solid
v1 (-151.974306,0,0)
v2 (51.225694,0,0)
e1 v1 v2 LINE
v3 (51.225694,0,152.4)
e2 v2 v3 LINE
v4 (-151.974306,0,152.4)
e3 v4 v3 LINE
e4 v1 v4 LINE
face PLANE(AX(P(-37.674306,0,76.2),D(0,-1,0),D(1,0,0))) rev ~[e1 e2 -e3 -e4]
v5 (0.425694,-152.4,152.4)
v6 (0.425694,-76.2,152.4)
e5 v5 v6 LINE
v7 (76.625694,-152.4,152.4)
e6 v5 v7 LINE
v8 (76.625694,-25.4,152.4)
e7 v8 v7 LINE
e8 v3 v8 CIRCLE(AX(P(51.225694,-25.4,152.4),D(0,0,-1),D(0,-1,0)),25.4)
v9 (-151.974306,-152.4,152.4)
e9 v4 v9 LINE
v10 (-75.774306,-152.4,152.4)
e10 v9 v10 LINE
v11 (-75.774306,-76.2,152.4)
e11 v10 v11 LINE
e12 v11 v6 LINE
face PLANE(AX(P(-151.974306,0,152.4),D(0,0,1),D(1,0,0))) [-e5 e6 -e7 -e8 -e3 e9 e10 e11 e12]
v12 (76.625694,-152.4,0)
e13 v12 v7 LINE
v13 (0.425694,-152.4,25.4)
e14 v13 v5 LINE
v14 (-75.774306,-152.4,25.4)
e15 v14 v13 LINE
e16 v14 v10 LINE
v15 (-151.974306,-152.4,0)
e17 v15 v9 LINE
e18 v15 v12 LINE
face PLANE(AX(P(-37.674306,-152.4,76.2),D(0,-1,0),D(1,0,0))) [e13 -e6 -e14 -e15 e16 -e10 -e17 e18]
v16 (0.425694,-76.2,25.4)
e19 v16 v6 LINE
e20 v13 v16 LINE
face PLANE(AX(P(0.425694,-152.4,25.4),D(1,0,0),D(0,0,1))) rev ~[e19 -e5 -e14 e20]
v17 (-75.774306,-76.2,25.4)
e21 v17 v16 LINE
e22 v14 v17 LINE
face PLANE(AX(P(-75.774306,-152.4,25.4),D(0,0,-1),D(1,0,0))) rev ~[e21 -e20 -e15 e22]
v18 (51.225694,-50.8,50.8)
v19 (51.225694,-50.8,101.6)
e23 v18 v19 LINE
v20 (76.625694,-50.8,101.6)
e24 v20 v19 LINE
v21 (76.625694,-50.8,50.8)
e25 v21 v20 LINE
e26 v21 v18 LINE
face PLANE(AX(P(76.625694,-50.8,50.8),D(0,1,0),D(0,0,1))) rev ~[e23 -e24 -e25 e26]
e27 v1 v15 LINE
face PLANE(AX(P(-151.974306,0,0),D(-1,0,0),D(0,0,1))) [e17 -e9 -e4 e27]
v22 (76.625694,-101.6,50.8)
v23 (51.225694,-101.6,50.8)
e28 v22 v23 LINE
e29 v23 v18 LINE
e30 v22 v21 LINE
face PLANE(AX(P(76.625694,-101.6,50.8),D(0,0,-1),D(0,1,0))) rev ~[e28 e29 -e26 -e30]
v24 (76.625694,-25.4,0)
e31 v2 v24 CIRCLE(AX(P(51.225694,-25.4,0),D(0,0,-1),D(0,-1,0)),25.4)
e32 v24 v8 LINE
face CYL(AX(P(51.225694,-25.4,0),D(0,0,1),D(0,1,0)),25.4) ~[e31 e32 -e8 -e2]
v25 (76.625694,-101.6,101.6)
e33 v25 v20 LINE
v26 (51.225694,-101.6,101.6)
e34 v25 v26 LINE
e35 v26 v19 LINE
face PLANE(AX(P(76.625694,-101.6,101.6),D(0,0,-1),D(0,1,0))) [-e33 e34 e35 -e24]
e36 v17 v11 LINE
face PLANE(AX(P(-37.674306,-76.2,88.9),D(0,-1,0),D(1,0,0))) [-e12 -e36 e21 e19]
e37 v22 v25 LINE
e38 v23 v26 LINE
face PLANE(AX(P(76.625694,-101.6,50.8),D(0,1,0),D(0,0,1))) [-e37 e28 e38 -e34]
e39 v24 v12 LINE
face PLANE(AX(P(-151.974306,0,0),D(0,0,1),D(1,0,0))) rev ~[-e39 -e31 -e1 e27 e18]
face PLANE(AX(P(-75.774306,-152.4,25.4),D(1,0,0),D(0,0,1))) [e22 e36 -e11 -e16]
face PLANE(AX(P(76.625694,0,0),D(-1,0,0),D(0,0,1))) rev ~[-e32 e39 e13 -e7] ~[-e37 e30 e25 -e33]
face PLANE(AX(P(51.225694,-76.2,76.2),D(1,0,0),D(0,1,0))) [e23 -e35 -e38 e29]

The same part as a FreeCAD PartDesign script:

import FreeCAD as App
import Part
import Sketcher
Q = App.Units.Quantity


def edges_at(feature, points):
    """Names of the edges that pass closest to the given points."""
    edges = feature.Shape.Edges
    near = lambda p: min(range(len(edges)), key=lambda i: edges[i].distToShape(Part.Vertex(*p))[0])
    return sorted({f"Edge{near(p) + 1}" for p in points})

doc = App.newDocument("Part")
body = doc.addObject("PartDesign::Body", "Body")

# Sketch on XZ plane
sketch1 = body.newObject("Sketcher::SketchObject", "Sketch")
sketch1.AttachmentSupport = (doc.getObject("XZ_Plane"), [""])
sketch1.MapMode = "FlatFace"
sketch1.addGeometry([
    Part.LineSegment(App.Vector(-152, 152, 0), App.Vector(-152, 0, 0)),
    Part.LineSegment(App.Vector(-152, 0, 0), App.Vector(77, 0, 0)),
    Part.LineSegment(App.Vector(77, 0, 0), App.Vector(77, 152, 0)),
    Part.LineSegment(App.Vector(77, 152, 0), App.Vector(-152, 152, 0)),
], False)
sketch1.addConstraint([
    Sketcher.Constraint("Coincident", 0, 2, 1, 1),
    Sketcher.Constraint("Coincident", 1, 2, 2, 1),
    Sketcher.Constraint("Coincident", 2, 2, 3, 1),
    Sketcher.Constraint("Coincident", 3, 2, 0, 1),
    Sketcher.Constraint("Vertical", 0),
    Sketcher.Constraint("Horizontal", 1),
    Sketcher.Constraint("Vertical", 2),
    Sketcher.Constraint("Horizontal", 3),
    Sketcher.Constraint("PointOnObject", 0, 2, -1),
    Sketcher.Constraint("DistanceX", 1, 1, 1, 2, Q("9 in")),
    Sketcher.Constraint("DistanceY", 0, 2, 0, 1, Q("6 in")),
    Sketcher.Constraint("DistanceX", 0, 2, -1, 1, 151.974306),
])
pad1 = body.newObject("PartDesign::Pad", "Pad")
pad1.Profile = sketch1
pad1.Length = Q("6 in")

# Sketch on XZ plane
sketch2 = body.newObject("Sketcher::SketchObject", "Sketch001")
sketch2.AttachmentSupport = (doc.getObject("XZ_Plane"), [""])
sketch2.MapMode = "FlatFace"
sketch2.AttachmentOffset = App.Placement(App.Vector(0, 0, 6 * 25.4), App.Rotation())
sketch2.addGeometry([
    Part.LineSegment(App.Vector(-76, 152, 0), App.Vector(-76, 25, 0)),
    Part.LineSegment(App.Vector(-76, 25, 0), App.Vector(0, 25, 0)),
    Part.LineSegment(App.Vector(0, 25, 0), App.Vector(0, 152, 0)),
    Part.LineSegment(App.Vector(0, 152, 0), App.Vector(-76, 152, 0)),
], False)
sketch2.addConstraint([
    Sketcher.Constraint("Coincident", 0, 2, 1, 1),
    Sketcher.Constraint("Coincident", 1, 2, 2, 1),
    Sketcher.Constraint("Coincident", 2, 2, 3, 1),
    Sketcher.Constraint("Coincident", 3, 2, 0, 1),
    Sketcher.Constraint("Vertical", 0),
    Sketcher.Constraint("Horizontal", 1),
    Sketcher.Constraint("Vertical", 2),
    Sketcher.Constraint("Horizontal", 3),
    Sketcher.Constraint("DistanceX", 1, 1, 1, 2, Q("3 in")),
    Sketcher.Constraint("DistanceY", 0, 2, 0, 1, Q("5 in")),
    Sketcher.Constraint("DistanceY", -1, 1, 0, 2, Q("1 in")),
    Sketcher.Constraint("DistanceX", 0, 2, -1, 1, 75.774306),
])
pocket1 = body.newObject("PartDesign::Pocket", "Pocket")
pocket1.Profile = sketch2
pocket1.Length = Q("3 in")

# Sketch on YZ plane
sketch3 = body.newObject("Sketcher::SketchObject", "Sketch002")
sketch3.AttachmentSupport = (doc.getObject("YZ_Plane"), [""])
sketch3.MapMode = "FlatFace"
sketch3.AttachmentOffset = App.Placement(App.Vector(0, 0, 76.625694), App.Rotation())
sketch3.addGeometry([
    Part.LineSegment(App.Vector(-102, 102, 0), App.Vector(-102, 51, 0)),
    Part.LineSegment(App.Vector(-102, 51, 0), App.Vector(-51, 51, 0)),
    Part.LineSegment(App.Vector(-51, 51, 0), App.Vector(-51, 102, 0)),
    Part.LineSegment(App.Vector(-51, 102, 0), App.Vector(-102, 102, 0)),
], False)
sketch3.addConstraint([
    Sketcher.Constraint("Coincident", 0, 2, 1, 1),
    Sketcher.Constraint("Coincident", 1, 2, 2, 1),
    Sketcher.Constraint("Coincident", 2, 2, 3, 1),
    Sketcher.Constraint("Coincident", 3, 2, 0, 1),
    Sketcher.Constraint("Vertical", 0),
    Sketcher.Constraint("Horizontal", 1),
    Sketcher.Constraint("Vertical", 2),
    Sketcher.Constraint("Horizontal", 3),
    Sketcher.Constraint("Equal", 3, 0),
    Sketcher.Constraint("DistanceX", 1, 1, 1, 2, Q("2 in")),
    Sketcher.Constraint("DistanceX", 0, 2, -1, 1, Q("4 in")),
    Sketcher.Constraint("DistanceY", -1, 1, 0, 2, Q("2 in")),
])
pocket2 = body.newObject("PartDesign::Pocket", "Pocket001")
pocket2.Profile = sketch3
pocket2.Length = Q("1 in")
doc.recompute()

fillet = body.newObject("PartDesign::Fillet", "Fillet")
fillet.Base = (pocket2, edges_at(pocket2, [(76.626, 0, 76.2)]))
fillet.Radius = Q("1 in")

doc.recompute()
